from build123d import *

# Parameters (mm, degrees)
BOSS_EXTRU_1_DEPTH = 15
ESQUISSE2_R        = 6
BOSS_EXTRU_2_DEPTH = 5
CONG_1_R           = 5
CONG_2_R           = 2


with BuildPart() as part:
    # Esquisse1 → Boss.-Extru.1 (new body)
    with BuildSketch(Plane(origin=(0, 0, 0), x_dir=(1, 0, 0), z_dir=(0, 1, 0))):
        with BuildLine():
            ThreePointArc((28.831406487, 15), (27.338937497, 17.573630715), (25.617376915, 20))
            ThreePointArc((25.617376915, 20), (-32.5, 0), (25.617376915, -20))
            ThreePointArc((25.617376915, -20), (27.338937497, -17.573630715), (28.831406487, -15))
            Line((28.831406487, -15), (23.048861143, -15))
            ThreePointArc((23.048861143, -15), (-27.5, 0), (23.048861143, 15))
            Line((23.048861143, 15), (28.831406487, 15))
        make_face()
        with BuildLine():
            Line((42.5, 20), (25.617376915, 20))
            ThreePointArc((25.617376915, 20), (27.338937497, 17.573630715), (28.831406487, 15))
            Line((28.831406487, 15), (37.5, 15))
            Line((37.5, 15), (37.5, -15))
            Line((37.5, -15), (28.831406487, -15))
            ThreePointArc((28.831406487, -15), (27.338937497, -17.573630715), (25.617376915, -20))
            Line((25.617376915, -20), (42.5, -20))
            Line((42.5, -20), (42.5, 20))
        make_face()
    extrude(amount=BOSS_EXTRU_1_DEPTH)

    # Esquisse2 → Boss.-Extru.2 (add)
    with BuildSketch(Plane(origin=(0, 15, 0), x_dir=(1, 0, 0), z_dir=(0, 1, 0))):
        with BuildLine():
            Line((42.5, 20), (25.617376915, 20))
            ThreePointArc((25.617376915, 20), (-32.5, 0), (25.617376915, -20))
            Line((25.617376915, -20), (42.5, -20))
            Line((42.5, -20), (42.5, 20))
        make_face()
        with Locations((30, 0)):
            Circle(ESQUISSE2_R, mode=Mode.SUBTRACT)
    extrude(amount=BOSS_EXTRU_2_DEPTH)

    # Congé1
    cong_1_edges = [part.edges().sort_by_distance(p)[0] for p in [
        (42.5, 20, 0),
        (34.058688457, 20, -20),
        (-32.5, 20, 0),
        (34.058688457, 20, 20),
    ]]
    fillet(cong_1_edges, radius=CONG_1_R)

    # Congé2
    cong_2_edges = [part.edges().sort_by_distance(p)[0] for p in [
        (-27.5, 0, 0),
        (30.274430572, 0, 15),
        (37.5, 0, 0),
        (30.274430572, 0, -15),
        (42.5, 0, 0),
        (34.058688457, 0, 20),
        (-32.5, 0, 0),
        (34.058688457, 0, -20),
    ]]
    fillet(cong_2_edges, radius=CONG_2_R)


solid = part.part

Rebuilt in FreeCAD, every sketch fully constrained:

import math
import FreeCAD as App
import Part
import Sketcher
from FreeCAD import Vector
Q = App.Units.Quantity


def edges_at(feature, points):
    """Names of the edges that pass closest to the given points."""
    edges = feature.Shape.Edges
    near = lambda p: min(range(len(edges)), key=lambda i: edges[i].distToShape(Part.Vertex(*p))[0])
    return sorted({f"Edge{near(p) + 1}" for p in points})

doc = App.newDocument("Part")
body = doc.addObject("PartDesign::Body", "Body")

# Sketch on XZ plane
sketch1 = body.newObject("Sketcher::SketchObject", "Sketch")
sketch1.AttachmentSupport = (doc.getObject("XZ_Plane"), [""])
sketch1.MapMode = "FlatFace"
sketch1.addGeometry([
    Part.ArcOfCircle(Part.Circle(Vector(0, 0, 0), Vector(0, 0, 1), 32), math.radians(38), math.radians(322)),  # 0
    Part.LineSegment(Vector(26, 20, 0), Vector(42, 20, 0)),  # 1
    Part.LineSegment(Vector(42, 20, 0), Vector(42, -20, 0)),  # 2
    Part.LineSegment(Vector(42, -20, 0), Vector(26, -20, 0)),  # 3
    Part.ArcOfCircle(Part.Circle(Vector(0, 0, 0), Vector(0, 0, 1), 28), math.radians(33), math.radians(327)),  # 4
    Part.LineSegment(Vector(23, -15, 0), Vector(38, -15, 0)),  # 5
    Part.LineSegment(Vector(38, -15, 0), Vector(38, 15, 0)),  # 6
    Part.LineSegment(Vector(38, 15, 0), Vector(23, 15, 0)),  # 7
], False)
sketch1.addConstraint([
    Sketcher.Constraint("Coincident", 0, 1, 1, 1),
    Sketcher.Constraint("Coincident", 1, 2, 2, 1),
    Sketcher.Constraint("Coincident", 2, 2, 3, 1),
    Sketcher.Constraint("Coincident", 3, 2, 0, 2),
    Sketcher.Constraint("Coincident", 4, 2, 5, 1),
    Sketcher.Constraint("Coincident", 5, 2, 6, 1),
    Sketcher.Constraint("Coincident", 6, 2, 7, 1),
    Sketcher.Constraint("Coincident", 7, 2, 4, 1),
    Sketcher.Constraint("Horizontal", 1),
    Sketcher.Constraint("Vertical", 2),
    Sketcher.Constraint("Horizontal", 3),
    Sketcher.Constraint("Horizontal", 5),
    Sketcher.Constraint("Vertical", 6),
    Sketcher.Constraint("Horizontal", 7),
    Sketcher.Constraint("Coincident", 0, 3, -1, 1),
    Sketcher.Constraint("Coincident", 4, 3, -1, 1),
    Sketcher.Constraint("Vertical", 0, 1, 3, 2),
    Sketcher.Constraint("Vertical", 4, 2, 7, 2),
    Sketcher.Constraint("Radius", 0, Q("32.5 mm")),
    Sketcher.Constraint("Radius", 4, Q("27.5 mm")),
    Sketcher.Constraint("DistanceY", 2, 2, 2, 1, Q("40 mm")),
    Sketcher.Constraint("DistanceY", 6, 1, 6, 2, Q("30 mm")),
    Sketcher.Constraint("DistanceX", 5, 2, 2, 2, Q("5 mm")),
    Sketcher.Constraint("DistanceX", -1, 1, 1, 2, Q("42.5 mm")),
])
pad1 = body.newObject("PartDesign::Pad", "Pad")
pad1.Profile = sketch1
pad1.Length = 15
pad1.Reversed = True

# Sketch on XZ plane
sketch2 = body.newObject("Sketcher::SketchObject", "Sketch001")
sketch2.AttachmentSupport = (doc.getObject("XZ_Plane"), [""])
sketch2.MapMode = "FlatFace"
sketch2.AttachmentOffset = App.Placement(Vector(0, 0, -15), App.Rotation())
sketch2.addGeometry([
    Part.LineSegment(Vector(42, -20, 0), Vector(26, -20, 0)),  # 0
    Part.ArcOfCircle(Part.Circle(Vector(0, 0, 0), Vector(0, 0, 1), 32), math.radians(38), math.radians(322)),  # 1
    Part.LineSegment(Vector(26, 20, 0), Vector(42, 20, 0)),  # 2
    Part.LineSegment(Vector(42, 20, 0), Vector(42, -20, 0)),  # 3
    Part.Circle(Vector(30, 0, 0), Vector(0, 0, 1), 6),  # 4
], False)
sketch2.addConstraint([
    Sketcher.Constraint("Coincident", 0, 2, 1, 2),
    Sketcher.Constraint("Coincident", 1, 1, 2, 1),
    Sketcher.Constraint("Coincident", 2, 2, 3, 1),
    Sketcher.Constraint("Coincident", 3, 2, 0, 1),
    Sketcher.Constraint("Horizontal", 0),
    Sketcher.Constraint("Horizontal", 2),
    Sketcher.Constraint("Vertical", 3),
    Sketcher.Constraint("Coincident", 1, 3, -1, 1),
    Sketcher.Constraint("PointOnObject", 4, 3, -1),
    Sketcher.Constraint("Vertical", 0, 2, 1, 1),
    Sketcher.Constraint("Diameter", 4, Q("12 mm")),
    Sketcher.Constraint("Radius", 1, Q("32.5 mm")),
    Sketcher.Constraint("DistanceY", 3, 2, 3, 1, Q("40 mm")),
    Sketcher.Constraint("DistanceX", -1, 1, 4, 3, Q("30 mm")),
    Sketcher.Constraint("DistanceX", -1, 1, 2, 2, Q("42.5 mm")),
])
pad2 = body.newObject("PartDesign::Pad", "Pad001")
pad2.Profile = sketch2
pad2.Length = 5
pad2.Reversed = True
doc.recompute()

fillet = body.newObject("PartDesign::Fillet", "Fillet")
fillet.Base = (pad2, edges_at(pad2, [
    (42.5, 20, 0),
    (34.059, 20, -20),
    (-32.5, 20, 0),
    (34.059, 20, 20),
]))
fillet.Radius = 5
doc.recompute()

fillet2 = body.newObject("PartDesign::Fillet", "Fillet001")
fillet2.Base = (fillet, edges_at(fillet, [
    (-27.5, 0, 0),
    (30.274, 0, 15),
    (37.5, 0, 0),
    (30.274, 0, -15),
    (42.5, 0, 0),
    (34.059, 0, 20),
    (-32.5, 0, 0),
    (34.059, 0, -20),
]))
fillet2.Radius = 2

doc.recompute()
